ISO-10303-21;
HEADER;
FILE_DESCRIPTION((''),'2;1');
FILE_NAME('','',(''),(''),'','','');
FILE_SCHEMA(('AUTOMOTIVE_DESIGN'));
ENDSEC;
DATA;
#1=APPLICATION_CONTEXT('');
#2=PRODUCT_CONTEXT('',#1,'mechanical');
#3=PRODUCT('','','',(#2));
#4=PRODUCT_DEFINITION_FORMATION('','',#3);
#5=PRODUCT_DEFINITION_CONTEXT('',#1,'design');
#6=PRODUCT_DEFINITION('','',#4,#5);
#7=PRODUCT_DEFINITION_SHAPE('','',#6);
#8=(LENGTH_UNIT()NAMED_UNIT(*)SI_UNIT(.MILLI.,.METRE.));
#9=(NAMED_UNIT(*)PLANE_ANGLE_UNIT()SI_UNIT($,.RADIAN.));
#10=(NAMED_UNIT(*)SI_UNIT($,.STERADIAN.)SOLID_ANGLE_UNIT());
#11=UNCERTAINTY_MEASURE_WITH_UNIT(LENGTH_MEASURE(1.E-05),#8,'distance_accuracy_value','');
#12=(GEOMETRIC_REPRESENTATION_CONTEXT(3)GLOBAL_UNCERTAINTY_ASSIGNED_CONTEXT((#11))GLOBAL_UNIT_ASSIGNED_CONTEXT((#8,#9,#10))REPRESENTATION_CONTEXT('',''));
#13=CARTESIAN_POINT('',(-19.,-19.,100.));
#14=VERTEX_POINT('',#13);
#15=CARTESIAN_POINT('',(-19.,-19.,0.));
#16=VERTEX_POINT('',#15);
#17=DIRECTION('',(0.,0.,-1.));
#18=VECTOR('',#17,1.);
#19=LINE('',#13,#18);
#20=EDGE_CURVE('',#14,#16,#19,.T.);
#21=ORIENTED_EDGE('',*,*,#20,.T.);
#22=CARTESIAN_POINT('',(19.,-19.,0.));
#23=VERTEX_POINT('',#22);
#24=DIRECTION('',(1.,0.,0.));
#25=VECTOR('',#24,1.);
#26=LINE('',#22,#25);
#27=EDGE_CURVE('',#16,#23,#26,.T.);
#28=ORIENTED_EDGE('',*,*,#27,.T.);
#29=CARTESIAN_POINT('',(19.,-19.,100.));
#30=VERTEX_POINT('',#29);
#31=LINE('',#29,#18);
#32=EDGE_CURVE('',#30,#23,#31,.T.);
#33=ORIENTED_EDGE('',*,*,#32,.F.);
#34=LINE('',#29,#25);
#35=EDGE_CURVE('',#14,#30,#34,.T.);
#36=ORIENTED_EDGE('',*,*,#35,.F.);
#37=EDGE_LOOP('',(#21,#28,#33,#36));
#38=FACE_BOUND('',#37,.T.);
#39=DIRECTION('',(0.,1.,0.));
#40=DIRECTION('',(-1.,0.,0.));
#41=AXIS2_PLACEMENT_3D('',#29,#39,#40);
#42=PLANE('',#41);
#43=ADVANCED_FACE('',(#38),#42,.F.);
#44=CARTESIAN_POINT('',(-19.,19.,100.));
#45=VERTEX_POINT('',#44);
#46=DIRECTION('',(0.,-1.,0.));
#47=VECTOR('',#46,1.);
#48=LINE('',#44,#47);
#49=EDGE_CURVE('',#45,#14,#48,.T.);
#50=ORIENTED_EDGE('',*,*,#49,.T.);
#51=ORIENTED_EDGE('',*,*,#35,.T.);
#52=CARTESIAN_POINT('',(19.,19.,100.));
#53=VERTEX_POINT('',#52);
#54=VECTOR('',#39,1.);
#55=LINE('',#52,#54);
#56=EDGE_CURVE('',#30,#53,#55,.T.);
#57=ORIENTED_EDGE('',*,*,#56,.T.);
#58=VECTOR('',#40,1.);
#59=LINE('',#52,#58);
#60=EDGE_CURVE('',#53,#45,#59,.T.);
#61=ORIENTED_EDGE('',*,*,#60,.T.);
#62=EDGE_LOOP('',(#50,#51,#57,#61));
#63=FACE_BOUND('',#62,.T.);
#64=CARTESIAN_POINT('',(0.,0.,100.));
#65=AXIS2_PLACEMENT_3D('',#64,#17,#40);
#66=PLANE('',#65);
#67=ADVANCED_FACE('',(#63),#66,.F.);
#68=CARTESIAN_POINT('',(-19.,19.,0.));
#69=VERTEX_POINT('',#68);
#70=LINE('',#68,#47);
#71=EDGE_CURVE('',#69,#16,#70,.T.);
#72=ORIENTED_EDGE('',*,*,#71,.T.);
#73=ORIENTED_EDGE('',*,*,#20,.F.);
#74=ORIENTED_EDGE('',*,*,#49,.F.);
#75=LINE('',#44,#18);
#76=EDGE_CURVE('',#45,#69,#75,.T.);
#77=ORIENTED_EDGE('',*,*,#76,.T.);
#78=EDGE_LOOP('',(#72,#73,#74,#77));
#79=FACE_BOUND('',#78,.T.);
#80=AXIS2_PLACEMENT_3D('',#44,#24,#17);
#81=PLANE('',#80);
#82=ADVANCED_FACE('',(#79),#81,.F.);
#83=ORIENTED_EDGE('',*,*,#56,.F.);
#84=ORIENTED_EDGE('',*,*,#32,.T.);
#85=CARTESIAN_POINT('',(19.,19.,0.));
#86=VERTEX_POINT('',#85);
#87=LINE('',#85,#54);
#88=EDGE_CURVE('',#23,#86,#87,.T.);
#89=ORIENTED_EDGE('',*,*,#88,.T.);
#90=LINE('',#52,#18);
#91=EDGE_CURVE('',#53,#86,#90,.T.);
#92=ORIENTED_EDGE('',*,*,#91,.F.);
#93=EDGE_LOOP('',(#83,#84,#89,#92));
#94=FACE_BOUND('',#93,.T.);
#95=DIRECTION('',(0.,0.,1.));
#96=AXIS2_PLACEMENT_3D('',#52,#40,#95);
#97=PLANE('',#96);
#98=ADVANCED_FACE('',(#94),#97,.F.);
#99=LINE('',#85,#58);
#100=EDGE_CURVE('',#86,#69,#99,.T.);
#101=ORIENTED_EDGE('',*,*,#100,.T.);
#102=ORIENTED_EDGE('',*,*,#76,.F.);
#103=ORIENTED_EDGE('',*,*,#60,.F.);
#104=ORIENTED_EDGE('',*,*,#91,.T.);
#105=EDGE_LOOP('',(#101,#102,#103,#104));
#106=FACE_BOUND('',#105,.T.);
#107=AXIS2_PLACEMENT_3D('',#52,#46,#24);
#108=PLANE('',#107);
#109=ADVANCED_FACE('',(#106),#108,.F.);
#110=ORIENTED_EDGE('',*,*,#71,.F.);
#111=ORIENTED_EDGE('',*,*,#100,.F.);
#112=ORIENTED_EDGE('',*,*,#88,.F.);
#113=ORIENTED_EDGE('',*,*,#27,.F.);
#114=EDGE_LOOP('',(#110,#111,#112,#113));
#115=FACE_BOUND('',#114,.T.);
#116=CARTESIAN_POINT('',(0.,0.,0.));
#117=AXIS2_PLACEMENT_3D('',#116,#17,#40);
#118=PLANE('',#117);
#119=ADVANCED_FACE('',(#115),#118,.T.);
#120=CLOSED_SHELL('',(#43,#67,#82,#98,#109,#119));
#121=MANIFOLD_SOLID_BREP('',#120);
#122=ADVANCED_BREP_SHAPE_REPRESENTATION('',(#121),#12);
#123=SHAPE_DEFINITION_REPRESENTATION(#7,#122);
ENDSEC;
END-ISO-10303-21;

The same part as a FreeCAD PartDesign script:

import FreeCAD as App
import Part
import Sketcher
from FreeCAD import Vector
Q = App.Units.Quantity

doc = App.newDocument("Part")
body = doc.addObject("PartDesign::Body", "Body")

sketch1 = body.newObject("Sketcher::SketchObject", "Sketch")
sketch1.AttachmentSupport = (doc.getObject("XY_Plane"), [""])
sketch1.MapMode = "FlatFace"
sketch1.addGeometry(Part.LineSegment(Vector(-19, 19, 0), Vector(-19, -19, 0)), False)
sketch1.addGeometry(Part.LineSegment(Vector(-19, -19, 0), Vector(19, -19, 0)), False)
sketch1.addGeometry(Part.LineSegment(Vector(19, -19, 0), Vector(19, 19, 0)), False)
sketch1.addGeometry(Part.LineSegment(Vector(19, 19, 0), Vector(-19, 19, 0)), False)
sketch1.addConstraint(Sketcher.Constraint("Coincident", 0, 2, 1, 1))
sketch1.addConstraint(Sketcher.Constraint("Coincident", 1, 2, 2, 1))
sketch1.addConstraint(Sketcher.Constraint("Coincident", 2, 2, 3, 1))
sketch1.addConstraint(Sketcher.Constraint("Coincident", 3, 2, 0, 1))
sketch1.addConstraint(Sketcher.Constraint("Vertical", 0))
sketch1.addConstraint(Sketcher.Constraint("Horizontal", 1))
sketch1.addConstraint(Sketcher.Constraint("Vertical", 2))
sketch1.addConstraint(Sketcher.Constraint("Horizontal", 3))
sketch1.addConstraint(Sketcher.Constraint("Symmetric", 0, 2, 2, 2, -1, 1))
sketch1.addConstraint(Sketcher.Constraint("Equal", 3, 0))
sketch1.addConstraint(Sketcher.Constraint("DistanceX", 1, 1, 1, 2, Q("38 mm")))
pad1 = body.newObject("PartDesign::Pad", "Pad")
pad1.Profile = sketch1
pad1.Length = 100

doc.recompute()
